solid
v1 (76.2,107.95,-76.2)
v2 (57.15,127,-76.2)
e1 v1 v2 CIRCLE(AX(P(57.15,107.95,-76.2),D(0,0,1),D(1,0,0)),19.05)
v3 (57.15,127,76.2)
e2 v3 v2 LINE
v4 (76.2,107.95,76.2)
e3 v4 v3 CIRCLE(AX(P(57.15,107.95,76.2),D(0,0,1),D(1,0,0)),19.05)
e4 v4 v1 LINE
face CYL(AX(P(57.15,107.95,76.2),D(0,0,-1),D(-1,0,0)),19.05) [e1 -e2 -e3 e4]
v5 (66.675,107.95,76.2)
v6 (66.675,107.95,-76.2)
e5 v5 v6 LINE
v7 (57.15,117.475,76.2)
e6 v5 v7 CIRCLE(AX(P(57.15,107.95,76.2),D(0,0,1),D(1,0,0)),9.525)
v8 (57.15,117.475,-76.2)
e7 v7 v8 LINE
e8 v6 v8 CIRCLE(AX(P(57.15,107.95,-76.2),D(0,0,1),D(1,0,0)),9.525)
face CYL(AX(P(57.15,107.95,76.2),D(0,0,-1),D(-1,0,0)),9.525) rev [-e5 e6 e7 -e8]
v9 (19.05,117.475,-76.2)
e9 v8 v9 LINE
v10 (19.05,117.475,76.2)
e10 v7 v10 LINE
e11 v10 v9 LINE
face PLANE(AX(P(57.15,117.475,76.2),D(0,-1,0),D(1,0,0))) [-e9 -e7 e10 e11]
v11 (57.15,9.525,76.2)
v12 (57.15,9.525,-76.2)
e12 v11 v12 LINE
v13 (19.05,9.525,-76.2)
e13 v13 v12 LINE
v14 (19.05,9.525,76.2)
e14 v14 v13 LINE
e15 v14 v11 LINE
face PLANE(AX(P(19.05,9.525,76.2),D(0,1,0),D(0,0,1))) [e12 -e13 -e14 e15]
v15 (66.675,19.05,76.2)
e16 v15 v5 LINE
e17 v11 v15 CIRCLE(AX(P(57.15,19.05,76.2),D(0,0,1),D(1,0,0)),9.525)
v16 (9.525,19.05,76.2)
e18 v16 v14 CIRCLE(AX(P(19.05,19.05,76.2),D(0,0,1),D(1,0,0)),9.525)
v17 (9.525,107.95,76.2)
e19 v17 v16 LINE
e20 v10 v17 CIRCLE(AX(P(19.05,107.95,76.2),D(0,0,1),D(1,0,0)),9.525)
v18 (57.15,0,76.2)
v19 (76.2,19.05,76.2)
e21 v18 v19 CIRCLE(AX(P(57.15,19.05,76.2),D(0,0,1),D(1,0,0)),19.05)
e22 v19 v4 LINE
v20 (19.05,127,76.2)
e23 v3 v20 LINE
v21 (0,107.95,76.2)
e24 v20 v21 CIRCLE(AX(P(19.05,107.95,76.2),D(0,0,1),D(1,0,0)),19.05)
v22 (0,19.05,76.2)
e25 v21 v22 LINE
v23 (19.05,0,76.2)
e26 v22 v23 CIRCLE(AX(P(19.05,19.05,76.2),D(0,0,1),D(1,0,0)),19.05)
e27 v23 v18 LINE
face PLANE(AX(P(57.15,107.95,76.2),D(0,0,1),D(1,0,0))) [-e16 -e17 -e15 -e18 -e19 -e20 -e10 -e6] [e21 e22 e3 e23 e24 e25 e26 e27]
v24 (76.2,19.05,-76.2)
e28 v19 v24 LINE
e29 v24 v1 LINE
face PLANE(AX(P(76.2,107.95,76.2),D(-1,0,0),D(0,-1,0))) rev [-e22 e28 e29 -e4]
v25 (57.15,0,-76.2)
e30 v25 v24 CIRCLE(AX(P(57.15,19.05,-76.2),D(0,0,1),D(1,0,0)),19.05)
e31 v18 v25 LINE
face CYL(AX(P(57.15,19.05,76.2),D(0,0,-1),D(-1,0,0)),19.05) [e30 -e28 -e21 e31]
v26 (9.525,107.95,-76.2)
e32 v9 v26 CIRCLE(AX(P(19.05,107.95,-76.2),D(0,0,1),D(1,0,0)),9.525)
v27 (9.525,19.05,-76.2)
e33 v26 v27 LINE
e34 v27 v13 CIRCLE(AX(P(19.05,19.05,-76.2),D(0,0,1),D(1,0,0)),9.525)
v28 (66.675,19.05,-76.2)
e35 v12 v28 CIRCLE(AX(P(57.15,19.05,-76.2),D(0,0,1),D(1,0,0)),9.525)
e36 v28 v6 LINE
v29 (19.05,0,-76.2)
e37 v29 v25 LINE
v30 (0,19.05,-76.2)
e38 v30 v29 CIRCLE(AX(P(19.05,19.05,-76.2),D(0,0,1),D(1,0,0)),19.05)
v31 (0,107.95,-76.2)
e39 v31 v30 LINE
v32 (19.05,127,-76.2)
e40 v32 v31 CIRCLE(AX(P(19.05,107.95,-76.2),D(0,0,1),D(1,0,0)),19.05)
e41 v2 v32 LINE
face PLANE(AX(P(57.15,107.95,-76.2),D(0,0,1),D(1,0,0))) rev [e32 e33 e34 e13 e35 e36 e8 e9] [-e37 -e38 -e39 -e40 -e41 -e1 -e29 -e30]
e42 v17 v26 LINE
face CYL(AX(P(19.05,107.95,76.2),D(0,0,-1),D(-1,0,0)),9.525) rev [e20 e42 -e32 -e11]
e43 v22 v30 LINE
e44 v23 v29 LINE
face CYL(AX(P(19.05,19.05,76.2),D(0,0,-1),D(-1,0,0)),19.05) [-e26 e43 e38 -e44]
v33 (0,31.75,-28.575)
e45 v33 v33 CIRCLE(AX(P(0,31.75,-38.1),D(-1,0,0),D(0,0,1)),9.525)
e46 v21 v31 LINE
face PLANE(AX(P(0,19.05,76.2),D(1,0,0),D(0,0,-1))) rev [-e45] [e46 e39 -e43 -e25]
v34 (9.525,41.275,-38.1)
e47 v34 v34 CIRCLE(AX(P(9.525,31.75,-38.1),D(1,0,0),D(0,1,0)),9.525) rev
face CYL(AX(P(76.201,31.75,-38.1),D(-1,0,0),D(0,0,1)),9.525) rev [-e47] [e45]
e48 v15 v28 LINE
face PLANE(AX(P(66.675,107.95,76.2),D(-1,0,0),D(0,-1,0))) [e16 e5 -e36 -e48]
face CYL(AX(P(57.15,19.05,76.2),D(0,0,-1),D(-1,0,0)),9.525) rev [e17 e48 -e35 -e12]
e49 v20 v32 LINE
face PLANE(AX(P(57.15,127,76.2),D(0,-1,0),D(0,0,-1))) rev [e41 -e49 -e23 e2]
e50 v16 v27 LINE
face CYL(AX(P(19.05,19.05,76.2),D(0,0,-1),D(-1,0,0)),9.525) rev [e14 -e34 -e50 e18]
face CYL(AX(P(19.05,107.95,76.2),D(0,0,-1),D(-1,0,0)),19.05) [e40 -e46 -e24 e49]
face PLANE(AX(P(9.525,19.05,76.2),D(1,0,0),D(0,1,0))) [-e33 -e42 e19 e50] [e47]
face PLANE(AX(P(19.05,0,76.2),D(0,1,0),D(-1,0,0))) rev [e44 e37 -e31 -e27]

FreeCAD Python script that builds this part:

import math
import FreeCAD as App
import Part
import Sketcher
from FreeCAD import Vector
Q = App.Units.Quantity

doc = App.newDocument("Part")
body = doc.addObject("PartDesign::Body", "Body")

sketch1 = body.newObject("Sketcher::SketchObject", "Sketch")
sketch1.AttachmentSupport = (doc.getObject("XY_Plane"), [""])
sketch1.MapMode = "FlatFace"
sketch1.addGeometry([
    Part.LineSegment(Vector(19, 0, 0), Vector(57, 0, 0)),
    Part.ArcOfCircle(Part.Circle(Vector(57, 19, 0), Vector(0, 0, 1), 19), math.radians(-90), math.radians(0)),
    Part.LineSegment(Vector(76, 19, 0), Vector(76, 108, 0)),
    Part.ArcOfCircle(Part.Circle(Vector(57, 108, 0), Vector(0, 0, 1), 19), math.radians(0), math.radians(90)),
    Part.LineSegment(Vector(57, 127, 0), Vector(19, 127, 0)),
    Part.ArcOfCircle(Part.Circle(Vector(19, 108, 0), Vector(0, 0, 1), 19), math.radians(90), math.radians(180)),
    Part.LineSegment(Vector(0, 108, 0), Vector(0, 19, 0)),
    Part.ArcOfCircle(Part.Circle(Vector(19, 19, 0), Vector(0, 0, 1), 19), math.radians(180), math.radians(270)),
    Part.LineSegment(Vector(57, 10, 0), Vector(19, 10, 0)),
    Part.ArcOfCircle(Part.Circle(Vector(19, 19, 0), Vector(0, 0, 1), 10), math.radians(180), math.radians(270)),
    Part.LineSegment(Vector(10, 19, 0), Vector(10, 108, 0)),
    Part.ArcOfCircle(Part.Circle(Vector(19, 108, 0), Vector(0, 0, 1), 10), math.radians(90), math.radians(180)),
    Part.LineSegment(Vector(19, 117, 0), Vector(57, 117, 0)),
    Part.ArcOfCircle(Part.Circle(Vector(57, 108, 0), Vector(0, 0, 1), 10), math.radians(0), math.radians(90)),
    Part.LineSegment(Vector(67, 108, 0), Vector(67, 19, 0)),
    Part.ArcOfCircle(Part.Circle(Vector(57, 19, 0), Vector(0, 0, 1), 10), math.radians(-90), math.radians(0)),
], False)
sketch1.addConstraint([
    Sketcher.Constraint("Tangent", 0, 2, 1, 1),
    Sketcher.Constraint("Tangent", 1, 2, 2, 1),
    Sketcher.Constraint("Tangent", 2, 2, 3, 1),
    Sketcher.Constraint("Tangent", 3, 2, 4, 1),
    Sketcher.Constraint("Tangent", 4, 2, 5, 1),
    Sketcher.Constraint("Tangent", 5, 2, 6, 1),
    Sketcher.Constraint("Tangent", 6, 2, 7, 1),
    Sketcher.Constraint("Tangent", 7, 2, 0, 1),
    Sketcher.Constraint("Tangent", 8, 2, 9, 2),
    Sketcher.Constraint("Tangent", 9, 1, 10, 1),
    Sketcher.Constraint("Tangent", 10, 2, 11, 2),
    Sketcher.Constraint("Tangent", 11, 1, 12, 1),
    Sketcher.Constraint("Tangent", 12, 2, 13, 2),
    Sketcher.Constraint("Tangent", 13, 1, 14, 1),
    Sketcher.Constraint("Tangent", 14, 2, 15, 2),
    Sketcher.Constraint("Tangent", 15, 1, 8, 1),
    Sketcher.Constraint("Horizontal", 0),
    Sketcher.Constraint("Vertical", 2),
    Sketcher.Constraint("Horizontal", 4),
    Sketcher.Constraint("Vertical", 6),
    Sketcher.Constraint("Horizontal", 8),
    Sketcher.Constraint("Vertical", 10),
    Sketcher.Constraint("Horizontal", 12),
    Sketcher.Constraint("Vertical", 14),
    Sketcher.Constraint("Coincident", 9, 3, 7, 3),
    Sketcher.Constraint("Coincident", 11, 3, 5, 3),
    Sketcher.Constraint("Coincident", 13, 3, 3, 3),
    Sketcher.Constraint("Equal", 1, 3),
    Sketcher.Constraint("Equal", 3, 5),
    Sketcher.Constraint("Equal", 5, 7),
    Sketcher.Constraint("Equal", 13, 15),
    Sketcher.Constraint("PointOnObject", 0, 2, -1),
    Sketcher.Constraint("PointOnObject", 5, 2, -2),
    Sketcher.Constraint("Radius", 1, Q("0.75 in")),
    Sketcher.Constraint("DistanceX", 0, 1, 0, 2, Q("1.5 in")),
    Sketcher.Constraint("DistanceY", 2, 1, 2, 2, Q("3.5 in")),
    Sketcher.Constraint("Radius", 9, Q("0.375 in")),
])
pad1 = body.newObject("PartDesign::Pad", "Pad")
pad1.Profile = sketch1
pad1.Length = Q("6 in")
pad1.Midplane = True

sketch2 = body.newObject("Sketcher::SketchObject", "Sketch001")
sketch2.AttachmentSupport = (doc.getObject("YZ_Plane"), [""])
sketch2.MapMode = "FlatFace"
sketch2.addGeometry(Part.Circle(Vector(32, -38, 0), Vector(0, 0, 1), 10), False)
sketch2.addConstraint([
    Sketcher.Constraint("Diameter", 0, Q("0.75 in")),
    Sketcher.Constraint("DistanceY", 0, 3, -1, 1, Q("1.5 in")),
    Sketcher.Constraint("DistanceX", -1, 1, 0, 3, Q("1.25 in")),
])
pocket1 = body.newObject("PartDesign::Pocket", "Pocket")
pocket1.Profile = sketch2
pocket1.Type = "UpToFirst"
pocket1.Reversed = True

doc.recompute()
